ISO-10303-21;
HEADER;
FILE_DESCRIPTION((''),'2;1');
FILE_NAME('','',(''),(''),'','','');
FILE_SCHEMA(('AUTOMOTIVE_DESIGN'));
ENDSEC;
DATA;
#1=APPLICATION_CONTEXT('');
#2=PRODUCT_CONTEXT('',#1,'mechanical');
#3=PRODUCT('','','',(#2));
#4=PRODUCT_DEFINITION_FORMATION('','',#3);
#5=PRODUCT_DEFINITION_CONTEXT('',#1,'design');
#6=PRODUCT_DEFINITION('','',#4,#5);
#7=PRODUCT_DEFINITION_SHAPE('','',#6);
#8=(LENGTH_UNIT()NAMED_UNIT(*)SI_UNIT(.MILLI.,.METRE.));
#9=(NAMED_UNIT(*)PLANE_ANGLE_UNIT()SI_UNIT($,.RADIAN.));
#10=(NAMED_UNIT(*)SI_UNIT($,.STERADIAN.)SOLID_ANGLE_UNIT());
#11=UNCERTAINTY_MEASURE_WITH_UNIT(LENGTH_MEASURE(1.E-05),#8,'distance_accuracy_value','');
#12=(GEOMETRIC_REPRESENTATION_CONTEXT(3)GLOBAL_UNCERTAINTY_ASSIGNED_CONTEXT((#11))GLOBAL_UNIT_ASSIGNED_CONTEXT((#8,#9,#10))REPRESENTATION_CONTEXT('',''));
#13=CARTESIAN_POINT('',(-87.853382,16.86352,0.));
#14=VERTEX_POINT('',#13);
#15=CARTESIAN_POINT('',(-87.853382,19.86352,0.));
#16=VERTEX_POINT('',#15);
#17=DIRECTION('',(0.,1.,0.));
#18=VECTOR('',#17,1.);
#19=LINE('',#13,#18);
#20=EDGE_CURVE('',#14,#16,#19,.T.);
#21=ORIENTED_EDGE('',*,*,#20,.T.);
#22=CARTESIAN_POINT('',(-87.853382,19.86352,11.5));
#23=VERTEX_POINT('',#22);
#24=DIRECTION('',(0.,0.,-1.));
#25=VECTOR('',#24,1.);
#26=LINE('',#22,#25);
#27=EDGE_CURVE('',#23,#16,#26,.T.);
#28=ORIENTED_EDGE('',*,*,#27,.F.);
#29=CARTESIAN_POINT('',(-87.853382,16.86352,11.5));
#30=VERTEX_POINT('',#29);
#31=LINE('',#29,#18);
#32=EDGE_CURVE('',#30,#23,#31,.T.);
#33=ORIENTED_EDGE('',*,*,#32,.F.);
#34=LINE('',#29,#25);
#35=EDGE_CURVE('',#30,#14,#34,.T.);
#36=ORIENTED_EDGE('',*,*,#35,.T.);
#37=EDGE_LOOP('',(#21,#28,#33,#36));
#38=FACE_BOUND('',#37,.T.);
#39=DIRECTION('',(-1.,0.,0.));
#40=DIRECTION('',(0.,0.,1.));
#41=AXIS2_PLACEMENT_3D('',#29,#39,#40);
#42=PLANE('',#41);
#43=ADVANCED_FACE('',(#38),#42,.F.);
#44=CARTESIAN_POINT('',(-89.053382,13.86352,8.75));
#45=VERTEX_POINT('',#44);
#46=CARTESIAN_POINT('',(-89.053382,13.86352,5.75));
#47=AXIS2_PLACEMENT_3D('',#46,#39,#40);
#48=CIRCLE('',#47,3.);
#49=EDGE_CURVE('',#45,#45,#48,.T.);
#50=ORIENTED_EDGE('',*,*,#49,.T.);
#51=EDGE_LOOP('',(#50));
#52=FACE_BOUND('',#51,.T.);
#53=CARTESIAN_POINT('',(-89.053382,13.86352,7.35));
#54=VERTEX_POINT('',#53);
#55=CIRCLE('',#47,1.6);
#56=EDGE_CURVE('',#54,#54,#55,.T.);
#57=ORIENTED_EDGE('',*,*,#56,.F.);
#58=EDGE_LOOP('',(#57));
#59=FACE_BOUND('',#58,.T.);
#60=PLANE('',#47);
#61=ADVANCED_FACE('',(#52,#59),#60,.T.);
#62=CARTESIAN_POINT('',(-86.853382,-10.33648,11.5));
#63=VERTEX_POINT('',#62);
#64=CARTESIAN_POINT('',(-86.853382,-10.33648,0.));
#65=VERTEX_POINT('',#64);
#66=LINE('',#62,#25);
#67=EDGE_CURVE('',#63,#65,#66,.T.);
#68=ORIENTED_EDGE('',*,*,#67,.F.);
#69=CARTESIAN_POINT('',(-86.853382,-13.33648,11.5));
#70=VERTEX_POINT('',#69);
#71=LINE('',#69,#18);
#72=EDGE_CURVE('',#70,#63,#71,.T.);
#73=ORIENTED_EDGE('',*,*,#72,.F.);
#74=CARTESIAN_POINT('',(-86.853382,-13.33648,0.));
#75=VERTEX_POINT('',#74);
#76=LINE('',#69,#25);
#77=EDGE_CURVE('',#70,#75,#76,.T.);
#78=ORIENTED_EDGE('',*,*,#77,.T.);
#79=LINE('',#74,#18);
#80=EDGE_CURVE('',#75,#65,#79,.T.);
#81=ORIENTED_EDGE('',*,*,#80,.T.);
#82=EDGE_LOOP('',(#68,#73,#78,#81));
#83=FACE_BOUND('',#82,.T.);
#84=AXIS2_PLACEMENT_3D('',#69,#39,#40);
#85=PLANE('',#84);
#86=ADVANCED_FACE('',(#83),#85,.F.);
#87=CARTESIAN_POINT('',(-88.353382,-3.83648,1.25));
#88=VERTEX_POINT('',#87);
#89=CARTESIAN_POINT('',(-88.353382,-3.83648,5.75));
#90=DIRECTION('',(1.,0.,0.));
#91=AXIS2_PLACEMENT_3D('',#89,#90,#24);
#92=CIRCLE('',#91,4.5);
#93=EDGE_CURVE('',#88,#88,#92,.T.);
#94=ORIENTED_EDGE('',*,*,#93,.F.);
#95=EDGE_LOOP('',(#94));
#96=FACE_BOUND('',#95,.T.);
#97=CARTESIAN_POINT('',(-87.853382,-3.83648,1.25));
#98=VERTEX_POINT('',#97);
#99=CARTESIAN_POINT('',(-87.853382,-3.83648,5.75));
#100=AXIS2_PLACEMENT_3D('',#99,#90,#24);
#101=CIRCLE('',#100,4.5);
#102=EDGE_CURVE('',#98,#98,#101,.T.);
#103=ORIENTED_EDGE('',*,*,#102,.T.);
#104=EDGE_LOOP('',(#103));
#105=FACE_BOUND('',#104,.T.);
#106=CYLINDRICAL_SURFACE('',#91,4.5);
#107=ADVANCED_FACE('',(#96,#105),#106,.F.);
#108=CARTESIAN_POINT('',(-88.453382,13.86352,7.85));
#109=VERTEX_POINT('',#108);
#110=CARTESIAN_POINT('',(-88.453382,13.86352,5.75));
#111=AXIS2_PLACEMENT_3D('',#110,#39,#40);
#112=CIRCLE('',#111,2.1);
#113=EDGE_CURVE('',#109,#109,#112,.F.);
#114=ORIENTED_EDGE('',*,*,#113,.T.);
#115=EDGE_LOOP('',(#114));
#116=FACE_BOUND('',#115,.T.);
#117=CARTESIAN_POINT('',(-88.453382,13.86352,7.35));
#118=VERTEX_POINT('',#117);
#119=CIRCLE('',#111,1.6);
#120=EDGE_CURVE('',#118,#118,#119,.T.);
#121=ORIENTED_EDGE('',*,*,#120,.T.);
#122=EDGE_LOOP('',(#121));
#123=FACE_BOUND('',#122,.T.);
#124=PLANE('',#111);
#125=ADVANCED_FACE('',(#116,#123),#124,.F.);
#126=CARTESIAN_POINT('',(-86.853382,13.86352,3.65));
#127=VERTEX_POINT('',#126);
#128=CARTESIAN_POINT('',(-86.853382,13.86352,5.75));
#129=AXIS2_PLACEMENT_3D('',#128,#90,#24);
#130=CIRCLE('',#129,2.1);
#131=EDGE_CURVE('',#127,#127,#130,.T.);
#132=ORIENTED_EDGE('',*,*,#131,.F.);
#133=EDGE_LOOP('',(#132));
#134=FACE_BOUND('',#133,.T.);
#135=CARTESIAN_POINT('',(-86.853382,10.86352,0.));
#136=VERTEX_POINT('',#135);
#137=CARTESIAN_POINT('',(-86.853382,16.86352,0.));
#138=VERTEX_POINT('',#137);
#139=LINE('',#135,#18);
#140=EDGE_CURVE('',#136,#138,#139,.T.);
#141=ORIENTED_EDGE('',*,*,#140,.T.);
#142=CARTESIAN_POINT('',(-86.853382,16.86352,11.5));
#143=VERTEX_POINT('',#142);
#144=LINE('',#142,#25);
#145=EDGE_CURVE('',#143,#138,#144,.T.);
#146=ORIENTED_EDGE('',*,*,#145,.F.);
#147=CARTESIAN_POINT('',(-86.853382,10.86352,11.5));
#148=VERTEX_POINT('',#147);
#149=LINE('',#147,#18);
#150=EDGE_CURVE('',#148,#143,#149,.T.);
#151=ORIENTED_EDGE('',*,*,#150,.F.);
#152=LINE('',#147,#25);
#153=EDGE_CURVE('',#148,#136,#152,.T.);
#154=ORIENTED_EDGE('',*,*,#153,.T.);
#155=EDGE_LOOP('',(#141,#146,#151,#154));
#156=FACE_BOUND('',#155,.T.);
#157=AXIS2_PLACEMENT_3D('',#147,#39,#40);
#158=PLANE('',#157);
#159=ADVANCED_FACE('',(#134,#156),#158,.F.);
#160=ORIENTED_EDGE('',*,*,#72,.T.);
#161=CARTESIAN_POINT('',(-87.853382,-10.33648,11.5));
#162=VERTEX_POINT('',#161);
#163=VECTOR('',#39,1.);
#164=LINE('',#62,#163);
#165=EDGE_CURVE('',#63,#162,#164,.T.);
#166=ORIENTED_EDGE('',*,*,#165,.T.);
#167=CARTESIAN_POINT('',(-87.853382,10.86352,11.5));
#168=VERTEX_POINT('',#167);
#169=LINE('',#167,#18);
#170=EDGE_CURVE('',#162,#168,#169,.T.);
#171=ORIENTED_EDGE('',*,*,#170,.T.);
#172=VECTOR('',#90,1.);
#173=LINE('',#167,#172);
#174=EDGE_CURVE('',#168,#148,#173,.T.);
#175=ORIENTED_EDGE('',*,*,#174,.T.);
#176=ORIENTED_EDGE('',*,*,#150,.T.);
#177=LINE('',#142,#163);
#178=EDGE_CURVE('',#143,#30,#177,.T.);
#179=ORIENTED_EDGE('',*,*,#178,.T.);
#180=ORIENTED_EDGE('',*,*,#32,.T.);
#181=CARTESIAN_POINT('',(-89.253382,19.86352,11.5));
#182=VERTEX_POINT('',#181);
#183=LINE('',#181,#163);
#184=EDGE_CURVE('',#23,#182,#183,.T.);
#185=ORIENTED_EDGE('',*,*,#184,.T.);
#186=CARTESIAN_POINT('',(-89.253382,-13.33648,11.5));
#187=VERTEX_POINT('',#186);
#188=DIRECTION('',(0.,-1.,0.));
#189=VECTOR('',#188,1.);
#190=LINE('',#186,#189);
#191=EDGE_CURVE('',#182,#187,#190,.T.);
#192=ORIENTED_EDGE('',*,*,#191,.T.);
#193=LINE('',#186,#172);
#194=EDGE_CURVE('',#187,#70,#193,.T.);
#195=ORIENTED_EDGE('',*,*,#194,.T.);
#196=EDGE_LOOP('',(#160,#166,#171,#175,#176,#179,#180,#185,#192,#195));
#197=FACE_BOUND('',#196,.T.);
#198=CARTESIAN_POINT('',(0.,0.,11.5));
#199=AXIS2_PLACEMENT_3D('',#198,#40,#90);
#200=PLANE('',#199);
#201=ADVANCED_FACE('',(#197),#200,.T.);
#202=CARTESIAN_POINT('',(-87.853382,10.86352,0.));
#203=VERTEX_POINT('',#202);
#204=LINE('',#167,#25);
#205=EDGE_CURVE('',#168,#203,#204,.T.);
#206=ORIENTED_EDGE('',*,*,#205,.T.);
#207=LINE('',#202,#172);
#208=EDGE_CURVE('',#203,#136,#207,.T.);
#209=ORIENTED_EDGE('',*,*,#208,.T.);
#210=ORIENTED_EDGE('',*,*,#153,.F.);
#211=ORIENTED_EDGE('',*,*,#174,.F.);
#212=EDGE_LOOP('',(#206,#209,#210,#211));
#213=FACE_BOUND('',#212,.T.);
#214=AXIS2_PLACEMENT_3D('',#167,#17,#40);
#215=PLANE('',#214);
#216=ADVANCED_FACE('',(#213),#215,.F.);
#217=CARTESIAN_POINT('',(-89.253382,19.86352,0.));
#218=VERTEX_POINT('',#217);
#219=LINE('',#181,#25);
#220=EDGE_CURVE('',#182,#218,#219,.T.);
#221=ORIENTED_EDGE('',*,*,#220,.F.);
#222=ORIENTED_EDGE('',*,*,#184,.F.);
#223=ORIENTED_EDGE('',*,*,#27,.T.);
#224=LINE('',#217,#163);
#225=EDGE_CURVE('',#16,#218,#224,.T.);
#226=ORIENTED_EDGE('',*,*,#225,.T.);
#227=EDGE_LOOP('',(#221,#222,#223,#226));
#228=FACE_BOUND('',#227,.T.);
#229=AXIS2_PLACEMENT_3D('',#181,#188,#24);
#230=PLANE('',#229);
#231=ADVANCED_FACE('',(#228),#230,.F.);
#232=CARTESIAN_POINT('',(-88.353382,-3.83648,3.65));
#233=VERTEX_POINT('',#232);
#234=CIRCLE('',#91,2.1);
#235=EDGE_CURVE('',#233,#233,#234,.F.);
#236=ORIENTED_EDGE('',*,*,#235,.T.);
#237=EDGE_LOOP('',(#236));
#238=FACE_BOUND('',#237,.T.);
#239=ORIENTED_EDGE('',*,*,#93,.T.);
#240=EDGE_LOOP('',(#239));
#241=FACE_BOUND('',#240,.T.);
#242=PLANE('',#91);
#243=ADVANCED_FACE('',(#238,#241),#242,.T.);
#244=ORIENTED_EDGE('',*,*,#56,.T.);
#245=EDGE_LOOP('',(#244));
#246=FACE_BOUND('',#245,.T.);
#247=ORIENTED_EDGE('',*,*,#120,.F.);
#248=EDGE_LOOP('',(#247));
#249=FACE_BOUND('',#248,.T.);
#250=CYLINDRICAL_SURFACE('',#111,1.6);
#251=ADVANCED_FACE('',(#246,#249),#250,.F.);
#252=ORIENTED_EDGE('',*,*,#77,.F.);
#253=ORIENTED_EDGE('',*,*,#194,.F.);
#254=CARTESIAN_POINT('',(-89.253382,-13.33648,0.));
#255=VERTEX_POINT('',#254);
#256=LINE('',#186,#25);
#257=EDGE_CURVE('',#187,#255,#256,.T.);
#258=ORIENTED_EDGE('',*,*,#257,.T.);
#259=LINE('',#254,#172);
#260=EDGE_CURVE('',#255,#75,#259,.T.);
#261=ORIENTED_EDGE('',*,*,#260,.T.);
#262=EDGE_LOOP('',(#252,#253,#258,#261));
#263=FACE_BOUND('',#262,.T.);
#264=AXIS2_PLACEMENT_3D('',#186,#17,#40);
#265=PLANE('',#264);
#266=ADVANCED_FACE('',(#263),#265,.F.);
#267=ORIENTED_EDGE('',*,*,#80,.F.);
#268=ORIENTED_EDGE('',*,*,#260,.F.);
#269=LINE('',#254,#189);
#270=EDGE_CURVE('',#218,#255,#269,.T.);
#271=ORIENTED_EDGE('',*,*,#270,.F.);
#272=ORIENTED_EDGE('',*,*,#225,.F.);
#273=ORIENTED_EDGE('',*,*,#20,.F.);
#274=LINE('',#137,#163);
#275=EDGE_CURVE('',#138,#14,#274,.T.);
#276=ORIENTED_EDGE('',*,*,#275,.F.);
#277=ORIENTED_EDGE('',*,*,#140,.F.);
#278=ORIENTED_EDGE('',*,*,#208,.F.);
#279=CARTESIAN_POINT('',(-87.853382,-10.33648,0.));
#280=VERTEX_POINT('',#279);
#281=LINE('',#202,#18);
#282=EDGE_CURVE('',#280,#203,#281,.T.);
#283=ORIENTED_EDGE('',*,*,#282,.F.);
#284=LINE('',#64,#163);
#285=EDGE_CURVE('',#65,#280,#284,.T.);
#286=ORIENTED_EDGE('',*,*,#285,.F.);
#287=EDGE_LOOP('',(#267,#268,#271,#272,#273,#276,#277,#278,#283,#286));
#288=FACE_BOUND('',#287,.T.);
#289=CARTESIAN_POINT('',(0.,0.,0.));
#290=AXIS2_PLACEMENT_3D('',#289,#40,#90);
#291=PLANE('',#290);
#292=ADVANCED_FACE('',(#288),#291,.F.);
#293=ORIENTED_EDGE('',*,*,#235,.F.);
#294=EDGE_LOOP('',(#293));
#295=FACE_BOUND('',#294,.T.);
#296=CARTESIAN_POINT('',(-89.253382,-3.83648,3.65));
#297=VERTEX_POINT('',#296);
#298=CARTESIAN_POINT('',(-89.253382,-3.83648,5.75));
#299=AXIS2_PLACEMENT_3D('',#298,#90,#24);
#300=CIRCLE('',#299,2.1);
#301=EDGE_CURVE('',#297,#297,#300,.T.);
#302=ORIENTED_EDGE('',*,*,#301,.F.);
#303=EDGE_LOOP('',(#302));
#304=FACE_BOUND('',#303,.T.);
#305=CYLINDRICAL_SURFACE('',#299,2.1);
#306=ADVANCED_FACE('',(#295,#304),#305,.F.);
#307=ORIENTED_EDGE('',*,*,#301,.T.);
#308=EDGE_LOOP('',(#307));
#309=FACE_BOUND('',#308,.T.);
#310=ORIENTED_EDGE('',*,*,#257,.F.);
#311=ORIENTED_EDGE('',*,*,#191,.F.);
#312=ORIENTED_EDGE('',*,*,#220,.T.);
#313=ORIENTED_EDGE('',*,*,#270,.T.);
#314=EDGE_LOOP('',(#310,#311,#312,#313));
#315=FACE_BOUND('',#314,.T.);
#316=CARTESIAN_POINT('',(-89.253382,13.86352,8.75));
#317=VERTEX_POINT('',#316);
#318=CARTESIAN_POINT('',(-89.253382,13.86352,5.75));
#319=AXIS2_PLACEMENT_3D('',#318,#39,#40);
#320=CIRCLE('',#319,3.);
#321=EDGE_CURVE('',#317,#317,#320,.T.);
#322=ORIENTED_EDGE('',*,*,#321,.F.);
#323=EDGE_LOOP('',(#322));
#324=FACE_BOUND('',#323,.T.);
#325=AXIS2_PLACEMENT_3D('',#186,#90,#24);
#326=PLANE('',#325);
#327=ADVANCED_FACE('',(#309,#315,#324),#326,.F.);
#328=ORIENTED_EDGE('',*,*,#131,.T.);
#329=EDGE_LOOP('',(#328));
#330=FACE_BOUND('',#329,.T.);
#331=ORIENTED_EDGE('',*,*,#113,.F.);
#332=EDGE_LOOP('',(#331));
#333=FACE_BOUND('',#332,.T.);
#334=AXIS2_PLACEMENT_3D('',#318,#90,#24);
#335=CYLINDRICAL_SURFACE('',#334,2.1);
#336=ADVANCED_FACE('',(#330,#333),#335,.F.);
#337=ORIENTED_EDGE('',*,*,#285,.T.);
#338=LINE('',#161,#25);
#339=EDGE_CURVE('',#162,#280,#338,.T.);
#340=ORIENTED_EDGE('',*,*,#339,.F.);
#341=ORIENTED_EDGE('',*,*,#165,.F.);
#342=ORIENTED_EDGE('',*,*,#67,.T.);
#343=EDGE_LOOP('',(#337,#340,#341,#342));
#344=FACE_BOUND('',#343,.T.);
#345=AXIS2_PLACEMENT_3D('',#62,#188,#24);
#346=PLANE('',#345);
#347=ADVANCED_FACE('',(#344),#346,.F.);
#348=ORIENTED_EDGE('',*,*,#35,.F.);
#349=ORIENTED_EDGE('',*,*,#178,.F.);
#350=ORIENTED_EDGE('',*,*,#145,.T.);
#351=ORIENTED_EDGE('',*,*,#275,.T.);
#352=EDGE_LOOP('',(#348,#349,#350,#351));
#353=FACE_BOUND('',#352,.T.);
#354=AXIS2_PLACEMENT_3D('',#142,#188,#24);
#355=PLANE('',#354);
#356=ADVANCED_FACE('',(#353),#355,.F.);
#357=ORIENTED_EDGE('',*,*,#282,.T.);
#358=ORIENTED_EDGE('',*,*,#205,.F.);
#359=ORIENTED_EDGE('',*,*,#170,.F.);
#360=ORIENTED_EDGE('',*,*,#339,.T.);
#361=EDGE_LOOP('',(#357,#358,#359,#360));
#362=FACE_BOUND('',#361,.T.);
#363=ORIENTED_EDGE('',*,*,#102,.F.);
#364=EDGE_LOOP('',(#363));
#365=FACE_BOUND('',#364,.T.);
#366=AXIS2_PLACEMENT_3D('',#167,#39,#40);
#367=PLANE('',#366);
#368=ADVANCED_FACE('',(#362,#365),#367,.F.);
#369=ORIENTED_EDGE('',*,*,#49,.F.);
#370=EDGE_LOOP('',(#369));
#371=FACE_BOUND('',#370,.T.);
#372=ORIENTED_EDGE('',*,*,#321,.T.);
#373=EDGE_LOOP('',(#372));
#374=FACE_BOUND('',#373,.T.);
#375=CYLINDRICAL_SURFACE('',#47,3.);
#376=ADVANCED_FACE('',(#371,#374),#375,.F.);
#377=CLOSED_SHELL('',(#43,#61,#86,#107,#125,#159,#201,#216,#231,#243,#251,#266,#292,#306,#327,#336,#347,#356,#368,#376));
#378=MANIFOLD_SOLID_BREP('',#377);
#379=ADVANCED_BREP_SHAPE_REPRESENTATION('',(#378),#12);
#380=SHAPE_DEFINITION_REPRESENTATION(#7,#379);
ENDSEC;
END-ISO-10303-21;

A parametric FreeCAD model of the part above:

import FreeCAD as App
import Part
import Sketcher

doc = App.newDocument("Part")
params = doc.addObject("Spreadsheet::Sheet", "Params")
for row, (alias, value) in enumerate([
    ("sketch1_width", "1 mm"),
    ("sketch1_height", "3 mm"),
    ("sketch1_height2", "6 mm"),
    ("sketch1_width2", "2.4 mm"),
    ("sketch1_height3", "33.2 mm"),
    ("pad1_length", "11.5 mm"),
    ("sketch2_diameter", "4.2 mm"),
    ("pocket1_length", "2.4 mm"),
    ("sketch3_diameter", "9 mm"),
    ("pocket2_length", "0.5 mm"),
    ("sketch4_diameter", "6 mm"),
    ("pocket3_length", "0.2 mm"),
    ("sketch5_diameter", "4.2 mm"),
    ("sketch5_diameter2", "3.2 mm"),
    ("pad2_length", "0.6 mm"),
], start=1):
    params.set(f"A{row}", alias)
    params.set(f"B{row}", "=" + value)
    params.setAlias(f"B{row}", alias)

body = doc.addObject("PartDesign::Body", "Body")

# Sketch on XY plane
sketch1 = doc.addObject("Sketcher::SketchObject", "Sketch")
body.addObject(sketch1)
sketch1.AttachmentSupport = (doc.XY_Plane, [""])
sketch1.MapMode = "FlatFace"
sketch1.addGeometry([
    Part.LineSegment(App.Vector(-89.3, 19.9, 0), App.Vector(-89.3, -13.3, 0)),  # 0
    Part.LineSegment(App.Vector(-89.3, -13.3, 0), App.Vector(-86.9, -13.3, 0)),  # 1
    Part.LineSegment(App.Vector(-86.9, -13.3, 0), App.Vector(-86.9, -10.3, 0)),  # 2
    Part.LineSegment(App.Vector(-86.9, -10.3, 0), App.Vector(-87.9, -10.3, 0)),  # 3
    Part.LineSegment(App.Vector(-87.9, -10.3, 0), App.Vector(-87.9, 10.9, 0)),  # 4
    Part.LineSegment(App.Vector(-87.9, 10.9, 0), App.Vector(-86.9, 10.9, 0)),  # 5
    Part.LineSegment(App.Vector(-86.9, 10.9, 0), App.Vector(-86.9, 16.9, 0)),  # 6
    Part.LineSegment(App.Vector(-86.9, 16.9, 0), App.Vector(-87.9, 16.9, 0)),  # 7
    Part.LineSegment(App.Vector(-87.9, 16.9, 0), App.Vector(-87.9, 19.9, 0)),  # 8
    Part.LineSegment(App.Vector(-87.9, 19.9, 0), App.Vector(-89.3, 19.9, 0)),  # 9
], False)
sketch1.addConstraint([
    Sketcher.Constraint("Coincident", 0, 2, 1, 1),
    Sketcher.Constraint("Coincident", 1, 2, 2, 1),
    Sketcher.Constraint("Coincident", 2, 2, 3, 1),
    Sketcher.Constraint("Coincident", 3, 2, 4, 1),
    Sketcher.Constraint("Coincident", 4, 2, 5, 1),
    Sketcher.Constraint("Coincident", 5, 2, 6, 1),
    Sketcher.Constraint("Coincident", 6, 2, 7, 1),
    Sketcher.Constraint("Coincident", 7, 2, 8, 1),
    Sketcher.Constraint("Coincident", 8, 2, 9, 1),
    Sketcher.Constraint("Coincident", 9, 2, 0, 1),
    Sketcher.Constraint("Vertical", 0),
    Sketcher.Constraint("Horizontal", 1),
    Sketcher.Constraint("Vertical", 2),
    Sketcher.Constraint("Horizontal", 3),
    Sketcher.Constraint("Vertical", 4),
    Sketcher.Constraint("Horizontal", 5),
    Sketcher.Constraint("Vertical", 6),
    Sketcher.Constraint("Horizontal", 7),
    Sketcher.Constraint("Vertical", 8),
    Sketcher.Constraint("Horizontal", 9),
    Sketcher.Constraint("Vertical", 2, 2, 5, 2),
    Sketcher.Constraint("Vertical", 4, 2, 7, 2),
    Sketcher.Constraint("Equal", 2, 8),
    Sketcher.Constraint("DistanceX", 3, 2, 3, 1, 1.0),
    Sketcher.Constraint("DistanceY", 2, 1, 2, 2, 3.0),
    Sketcher.Constraint("DistanceY", 6, 1, 6, 2, 6.0),
    Sketcher.Constraint("DistanceX", 1, 1, 1, 2, 2.4),
    Sketcher.Constraint("DistanceY", 0, 2, 0, 1, 33.2),
    Sketcher.Constraint("DistanceY", 0, 2, -1, 1, 13.33648),
    Sketcher.Constraint("DistanceX", 0, 2, -1, 1, 89.253382),
])
sketch1.setExpression("Constraints[23]", "Params.sketch1_width")
sketch1.setExpression("Constraints[24]", "Params.sketch1_height")
sketch1.setExpression("Constraints[25]", "Params.sketch1_height2")
sketch1.setExpression("Constraints[26]", "Params.sketch1_width2")
sketch1.setExpression("Constraints[27]", "Params.sketch1_height3")
pad1 = doc.addObject("PartDesign::Pad", "Pad")
body.addObject(pad1)
pad1.Profile = sketch1
pad1.setExpression("Length", "Params.pad1_length")

# Sketch on YZ plane
sketch2 = doc.addObject("Sketcher::SketchObject", "Sketch001")
body.addObject(sketch2)
sketch2.AttachmentSupport = (doc.YZ_Plane, [""])
sketch2.MapMode = "FlatFace"
sketch2.AttachmentOffset = App.Placement(App.Vector(0, 0, -89.253382), App.Rotation())
sketch2.addGeometry([
    Part.Circle(App.Vector(13.9, 5.8, 0), App.Vector(0, 0, 1), 2.1),
    Part.Circle(App.Vector(-3.8, 5.8, 0), App.Vector(0, 0, 1), 2.1),
], False)
sketch2.addConstraint([
    Sketcher.Constraint("Equal", 0, 1),
    Sketcher.Constraint("Horizontal", 0, 3, 1, 3),
    Sketcher.Constraint("Diameter", 0, 4.2),
    Sketcher.Constraint("DistanceX", 1, 3, 0, 3, 17.7),
    Sketcher.Constraint("DistanceY", -1, 1, 0, 3, 5.75),
    Sketcher.Constraint("DistanceX", -1, 1, 0, 3, 13.86352),
])
sketch2.setExpression("Constraints[2]", "Params.sketch2_diameter")
pocket1 = doc.addObject("PartDesign::Pocket", "Pocket")
body.addObject(pocket1)
pocket1.Profile = sketch2
pocket1.setExpression("Length", "Params.pocket1_length")
pocket1.Reversed = True

# Sketch on YZ plane
sketch3 = doc.addObject("Sketcher::SketchObject", "Sketch002")
body.addObject(sketch3)
sketch3.AttachmentSupport = (doc.YZ_Plane, [""])
sketch3.MapMode = "FlatFace"
sketch3.AttachmentOffset = App.Placement(App.Vector(0, 0, -87.853382), App.Rotation())
sketch3.addGeometry(Part.Circle(App.Vector(-3.8, 5.8, 0), App.Vector(0, 0, 1), 4.5), False)
sketch3.addConstraint([
    Sketcher.Constraint("Diameter", 0, 9.0),
    Sketcher.Constraint("DistanceY", -1, 1, 0, 3, 5.75),
    Sketcher.Constraint("DistanceX", 0, 3, -1, 1, 3.83648),
])
sketch3.setExpression("Constraints[0]", "Params.sketch3_diameter")
pocket2 = doc.addObject("PartDesign::Pocket", "Pocket001")
body.addObject(pocket2)
pocket2.Profile = sketch3
pocket2.setExpression("Length", "Params.pocket2_length")

# Sketch on YZ plane
sketch4 = doc.addObject("Sketcher::SketchObject", "Sketch003")
body.addObject(sketch4)
sketch4.AttachmentSupport = (doc.YZ_Plane, [""])
sketch4.MapMode = "FlatFace"
sketch4.AttachmentOffset = App.Placement(App.Vector(0, 0, -89.253382), App.Rotation())
sketch4.addGeometry(Part.Circle(App.Vector(13.9, 5.8, 0), App.Vector(0, 0, 1), 3), False)
sketch4.addConstraint([
    Sketcher.Constraint("Diameter", 0, 6.0),
    Sketcher.Constraint("DistanceY", -1, 1, 0, 3, 5.75),
    Sketcher.Constraint("DistanceX", -1, 1, 0, 3, 13.86352),
])
sketch4.setExpression("Constraints[0]", "Params.sketch4_diameter")
pocket3 = doc.addObject("PartDesign::Pocket", "Pocket002")
body.addObject(pocket3)
pocket3.Profile = sketch4
pocket3.setExpression("Length", "Params.pocket3_length")
pocket3.Reversed = True

# Sketch on YZ plane
sketch5 = doc.addObject("Sketcher::SketchObject", "Sketch004")
body.addObject(sketch5)
sketch5.AttachmentSupport = (doc.YZ_Plane, [""])
sketch5.MapMode = "FlatFace"
sketch5.AttachmentOffset = App.Placement(App.Vector(0, 0, -89.053382), App.Rotation())
sketch5.addGeometry([
    Part.Circle(App.Vector(13.9, 5.8, 0), App.Vector(0, 0, 1), 2.1),
    Part.Circle(App.Vector(13.9, 5.8, 0), App.Vector(0, 0, 1), 1.6),
], False)
sketch5.addConstraint([
    Sketcher.Constraint("Coincident", 1, 3, 0, 3),
    Sketcher.Constraint("Diameter", 0, 4.2),
    Sketcher.Constraint("Diameter", 1, 3.2),
    Sketcher.Constraint("DistanceY", -1, 1, 0, 3, 5.75),
    Sketcher.Constraint("DistanceX", -1, 1, 0, 3, 13.86352),
])
sketch5.setExpression("Constraints[1]", "Params.sketch5_diameter")
sketch5.setExpression("Constraints[2]", "Params.sketch5_diameter2")
pad2 = doc.addObject("PartDesign::Pad", "Pad001")
body.addObject(pad2)
pad2.Profile = sketch5
pad2.setExpression("Length", "Params.pad2_length")

doc.recompute()
